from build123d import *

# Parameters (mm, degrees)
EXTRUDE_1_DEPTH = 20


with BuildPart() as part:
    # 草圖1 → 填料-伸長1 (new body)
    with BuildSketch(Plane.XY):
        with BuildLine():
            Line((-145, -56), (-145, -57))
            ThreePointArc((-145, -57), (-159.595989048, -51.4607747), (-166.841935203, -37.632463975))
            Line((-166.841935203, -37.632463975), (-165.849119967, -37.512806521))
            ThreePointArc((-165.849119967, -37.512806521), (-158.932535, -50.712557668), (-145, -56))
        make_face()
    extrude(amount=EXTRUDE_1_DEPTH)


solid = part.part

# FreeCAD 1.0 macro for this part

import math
import FreeCAD as App
import Part
import Sketcher
from FreeCAD import Vector
Q = App.Units.Quantity

doc = App.newDocument("Part")
params = doc.addObject("Spreadsheet::Sheet", "Params")
for row, (alias, value) in enumerate([
    ("sketch1_radius", "21 mm"),
    ("sketch1_radius2", "22 mm"),
    ("pad1_length", "20 mm"),
], start=1):
    params.set(f"A{row}", alias)
    params.set(f"B{row}", "=" + value)
    params.setAlias(f"B{row}", alias)

body = doc.addObject("PartDesign::Body", "Body")

# Sketch on XY plane
sketch1 = body.newObject("Sketcher::SketchObject", "Sketch")
sketch1.AttachmentSupport = (doc.getObject("XY_Plane"), [""])
sketch1.MapMode = "FlatFace"
sketch1.addGeometry([
    Part.LineSegment(Vector(-145, -57, 0), Vector(-145, -56, 0)),
    Part.ArcOfCircle(Part.Circle(Vector(-145, -35, 0), Vector(0, 0, 1), 21), math.radians(-173.127666), math.radians(-90)),
    Part.LineSegment(Vector(-165.84912, -37.512807, 0), Vector(-166.841935, -37.632464, 0)),
    Part.ArcOfCircle(Part.Circle(Vector(-145, -35, 0), Vector(0, 0, 1), 22), math.radians(-173.127666), math.radians(-90)),
], False)
sketch1.addConstraint([
    Sketcher.Constraint("Coincident", 0, 2, 1, 2),
    Sketcher.Constraint("Coincident", 1, 1, 2, 1),
    Sketcher.Constraint("Coincident", 2, 2, 3, 1),
    Sketcher.Constraint("Coincident", 3, 2, 0, 1),
    Sketcher.Constraint("Vertical", 0),
    Sketcher.Constraint("Coincident", 3, 3, 1, 3),
    Sketcher.Constraint("Vertical", 3, 3, 0, 2),
    Sketcher.Constraint("Radius", 1, Q("21 mm")),
    Sketcher.Constraint("Radius", 3, Q("22 mm")),
    Sketcher.Constraint("DistanceX", 1, 3, -1, 1, Q("145 mm")),
    Sketcher.Constraint("DistanceY", 1, 3, -1, 1, Q("35 mm")),
    Sketcher.Constraint("DistanceX", 1, 1, -1, 1, Q("165.84912 mm")),
    Sketcher.Constraint("DistanceX", 2, 2, -1, 1, Q("166.841935 mm")),
])
sketch1.setExpression("Constraints[7]", "Params.sketch1_radius")
sketch1.setExpression("Constraints[8]", "Params.sketch1_radius2")
pad1 = body.newObject("PartDesign::Pad", "Pad")
pad1.Profile = sketch1
pad1.setExpression("Length", "Params.pad1_length")

doc.recompute()
